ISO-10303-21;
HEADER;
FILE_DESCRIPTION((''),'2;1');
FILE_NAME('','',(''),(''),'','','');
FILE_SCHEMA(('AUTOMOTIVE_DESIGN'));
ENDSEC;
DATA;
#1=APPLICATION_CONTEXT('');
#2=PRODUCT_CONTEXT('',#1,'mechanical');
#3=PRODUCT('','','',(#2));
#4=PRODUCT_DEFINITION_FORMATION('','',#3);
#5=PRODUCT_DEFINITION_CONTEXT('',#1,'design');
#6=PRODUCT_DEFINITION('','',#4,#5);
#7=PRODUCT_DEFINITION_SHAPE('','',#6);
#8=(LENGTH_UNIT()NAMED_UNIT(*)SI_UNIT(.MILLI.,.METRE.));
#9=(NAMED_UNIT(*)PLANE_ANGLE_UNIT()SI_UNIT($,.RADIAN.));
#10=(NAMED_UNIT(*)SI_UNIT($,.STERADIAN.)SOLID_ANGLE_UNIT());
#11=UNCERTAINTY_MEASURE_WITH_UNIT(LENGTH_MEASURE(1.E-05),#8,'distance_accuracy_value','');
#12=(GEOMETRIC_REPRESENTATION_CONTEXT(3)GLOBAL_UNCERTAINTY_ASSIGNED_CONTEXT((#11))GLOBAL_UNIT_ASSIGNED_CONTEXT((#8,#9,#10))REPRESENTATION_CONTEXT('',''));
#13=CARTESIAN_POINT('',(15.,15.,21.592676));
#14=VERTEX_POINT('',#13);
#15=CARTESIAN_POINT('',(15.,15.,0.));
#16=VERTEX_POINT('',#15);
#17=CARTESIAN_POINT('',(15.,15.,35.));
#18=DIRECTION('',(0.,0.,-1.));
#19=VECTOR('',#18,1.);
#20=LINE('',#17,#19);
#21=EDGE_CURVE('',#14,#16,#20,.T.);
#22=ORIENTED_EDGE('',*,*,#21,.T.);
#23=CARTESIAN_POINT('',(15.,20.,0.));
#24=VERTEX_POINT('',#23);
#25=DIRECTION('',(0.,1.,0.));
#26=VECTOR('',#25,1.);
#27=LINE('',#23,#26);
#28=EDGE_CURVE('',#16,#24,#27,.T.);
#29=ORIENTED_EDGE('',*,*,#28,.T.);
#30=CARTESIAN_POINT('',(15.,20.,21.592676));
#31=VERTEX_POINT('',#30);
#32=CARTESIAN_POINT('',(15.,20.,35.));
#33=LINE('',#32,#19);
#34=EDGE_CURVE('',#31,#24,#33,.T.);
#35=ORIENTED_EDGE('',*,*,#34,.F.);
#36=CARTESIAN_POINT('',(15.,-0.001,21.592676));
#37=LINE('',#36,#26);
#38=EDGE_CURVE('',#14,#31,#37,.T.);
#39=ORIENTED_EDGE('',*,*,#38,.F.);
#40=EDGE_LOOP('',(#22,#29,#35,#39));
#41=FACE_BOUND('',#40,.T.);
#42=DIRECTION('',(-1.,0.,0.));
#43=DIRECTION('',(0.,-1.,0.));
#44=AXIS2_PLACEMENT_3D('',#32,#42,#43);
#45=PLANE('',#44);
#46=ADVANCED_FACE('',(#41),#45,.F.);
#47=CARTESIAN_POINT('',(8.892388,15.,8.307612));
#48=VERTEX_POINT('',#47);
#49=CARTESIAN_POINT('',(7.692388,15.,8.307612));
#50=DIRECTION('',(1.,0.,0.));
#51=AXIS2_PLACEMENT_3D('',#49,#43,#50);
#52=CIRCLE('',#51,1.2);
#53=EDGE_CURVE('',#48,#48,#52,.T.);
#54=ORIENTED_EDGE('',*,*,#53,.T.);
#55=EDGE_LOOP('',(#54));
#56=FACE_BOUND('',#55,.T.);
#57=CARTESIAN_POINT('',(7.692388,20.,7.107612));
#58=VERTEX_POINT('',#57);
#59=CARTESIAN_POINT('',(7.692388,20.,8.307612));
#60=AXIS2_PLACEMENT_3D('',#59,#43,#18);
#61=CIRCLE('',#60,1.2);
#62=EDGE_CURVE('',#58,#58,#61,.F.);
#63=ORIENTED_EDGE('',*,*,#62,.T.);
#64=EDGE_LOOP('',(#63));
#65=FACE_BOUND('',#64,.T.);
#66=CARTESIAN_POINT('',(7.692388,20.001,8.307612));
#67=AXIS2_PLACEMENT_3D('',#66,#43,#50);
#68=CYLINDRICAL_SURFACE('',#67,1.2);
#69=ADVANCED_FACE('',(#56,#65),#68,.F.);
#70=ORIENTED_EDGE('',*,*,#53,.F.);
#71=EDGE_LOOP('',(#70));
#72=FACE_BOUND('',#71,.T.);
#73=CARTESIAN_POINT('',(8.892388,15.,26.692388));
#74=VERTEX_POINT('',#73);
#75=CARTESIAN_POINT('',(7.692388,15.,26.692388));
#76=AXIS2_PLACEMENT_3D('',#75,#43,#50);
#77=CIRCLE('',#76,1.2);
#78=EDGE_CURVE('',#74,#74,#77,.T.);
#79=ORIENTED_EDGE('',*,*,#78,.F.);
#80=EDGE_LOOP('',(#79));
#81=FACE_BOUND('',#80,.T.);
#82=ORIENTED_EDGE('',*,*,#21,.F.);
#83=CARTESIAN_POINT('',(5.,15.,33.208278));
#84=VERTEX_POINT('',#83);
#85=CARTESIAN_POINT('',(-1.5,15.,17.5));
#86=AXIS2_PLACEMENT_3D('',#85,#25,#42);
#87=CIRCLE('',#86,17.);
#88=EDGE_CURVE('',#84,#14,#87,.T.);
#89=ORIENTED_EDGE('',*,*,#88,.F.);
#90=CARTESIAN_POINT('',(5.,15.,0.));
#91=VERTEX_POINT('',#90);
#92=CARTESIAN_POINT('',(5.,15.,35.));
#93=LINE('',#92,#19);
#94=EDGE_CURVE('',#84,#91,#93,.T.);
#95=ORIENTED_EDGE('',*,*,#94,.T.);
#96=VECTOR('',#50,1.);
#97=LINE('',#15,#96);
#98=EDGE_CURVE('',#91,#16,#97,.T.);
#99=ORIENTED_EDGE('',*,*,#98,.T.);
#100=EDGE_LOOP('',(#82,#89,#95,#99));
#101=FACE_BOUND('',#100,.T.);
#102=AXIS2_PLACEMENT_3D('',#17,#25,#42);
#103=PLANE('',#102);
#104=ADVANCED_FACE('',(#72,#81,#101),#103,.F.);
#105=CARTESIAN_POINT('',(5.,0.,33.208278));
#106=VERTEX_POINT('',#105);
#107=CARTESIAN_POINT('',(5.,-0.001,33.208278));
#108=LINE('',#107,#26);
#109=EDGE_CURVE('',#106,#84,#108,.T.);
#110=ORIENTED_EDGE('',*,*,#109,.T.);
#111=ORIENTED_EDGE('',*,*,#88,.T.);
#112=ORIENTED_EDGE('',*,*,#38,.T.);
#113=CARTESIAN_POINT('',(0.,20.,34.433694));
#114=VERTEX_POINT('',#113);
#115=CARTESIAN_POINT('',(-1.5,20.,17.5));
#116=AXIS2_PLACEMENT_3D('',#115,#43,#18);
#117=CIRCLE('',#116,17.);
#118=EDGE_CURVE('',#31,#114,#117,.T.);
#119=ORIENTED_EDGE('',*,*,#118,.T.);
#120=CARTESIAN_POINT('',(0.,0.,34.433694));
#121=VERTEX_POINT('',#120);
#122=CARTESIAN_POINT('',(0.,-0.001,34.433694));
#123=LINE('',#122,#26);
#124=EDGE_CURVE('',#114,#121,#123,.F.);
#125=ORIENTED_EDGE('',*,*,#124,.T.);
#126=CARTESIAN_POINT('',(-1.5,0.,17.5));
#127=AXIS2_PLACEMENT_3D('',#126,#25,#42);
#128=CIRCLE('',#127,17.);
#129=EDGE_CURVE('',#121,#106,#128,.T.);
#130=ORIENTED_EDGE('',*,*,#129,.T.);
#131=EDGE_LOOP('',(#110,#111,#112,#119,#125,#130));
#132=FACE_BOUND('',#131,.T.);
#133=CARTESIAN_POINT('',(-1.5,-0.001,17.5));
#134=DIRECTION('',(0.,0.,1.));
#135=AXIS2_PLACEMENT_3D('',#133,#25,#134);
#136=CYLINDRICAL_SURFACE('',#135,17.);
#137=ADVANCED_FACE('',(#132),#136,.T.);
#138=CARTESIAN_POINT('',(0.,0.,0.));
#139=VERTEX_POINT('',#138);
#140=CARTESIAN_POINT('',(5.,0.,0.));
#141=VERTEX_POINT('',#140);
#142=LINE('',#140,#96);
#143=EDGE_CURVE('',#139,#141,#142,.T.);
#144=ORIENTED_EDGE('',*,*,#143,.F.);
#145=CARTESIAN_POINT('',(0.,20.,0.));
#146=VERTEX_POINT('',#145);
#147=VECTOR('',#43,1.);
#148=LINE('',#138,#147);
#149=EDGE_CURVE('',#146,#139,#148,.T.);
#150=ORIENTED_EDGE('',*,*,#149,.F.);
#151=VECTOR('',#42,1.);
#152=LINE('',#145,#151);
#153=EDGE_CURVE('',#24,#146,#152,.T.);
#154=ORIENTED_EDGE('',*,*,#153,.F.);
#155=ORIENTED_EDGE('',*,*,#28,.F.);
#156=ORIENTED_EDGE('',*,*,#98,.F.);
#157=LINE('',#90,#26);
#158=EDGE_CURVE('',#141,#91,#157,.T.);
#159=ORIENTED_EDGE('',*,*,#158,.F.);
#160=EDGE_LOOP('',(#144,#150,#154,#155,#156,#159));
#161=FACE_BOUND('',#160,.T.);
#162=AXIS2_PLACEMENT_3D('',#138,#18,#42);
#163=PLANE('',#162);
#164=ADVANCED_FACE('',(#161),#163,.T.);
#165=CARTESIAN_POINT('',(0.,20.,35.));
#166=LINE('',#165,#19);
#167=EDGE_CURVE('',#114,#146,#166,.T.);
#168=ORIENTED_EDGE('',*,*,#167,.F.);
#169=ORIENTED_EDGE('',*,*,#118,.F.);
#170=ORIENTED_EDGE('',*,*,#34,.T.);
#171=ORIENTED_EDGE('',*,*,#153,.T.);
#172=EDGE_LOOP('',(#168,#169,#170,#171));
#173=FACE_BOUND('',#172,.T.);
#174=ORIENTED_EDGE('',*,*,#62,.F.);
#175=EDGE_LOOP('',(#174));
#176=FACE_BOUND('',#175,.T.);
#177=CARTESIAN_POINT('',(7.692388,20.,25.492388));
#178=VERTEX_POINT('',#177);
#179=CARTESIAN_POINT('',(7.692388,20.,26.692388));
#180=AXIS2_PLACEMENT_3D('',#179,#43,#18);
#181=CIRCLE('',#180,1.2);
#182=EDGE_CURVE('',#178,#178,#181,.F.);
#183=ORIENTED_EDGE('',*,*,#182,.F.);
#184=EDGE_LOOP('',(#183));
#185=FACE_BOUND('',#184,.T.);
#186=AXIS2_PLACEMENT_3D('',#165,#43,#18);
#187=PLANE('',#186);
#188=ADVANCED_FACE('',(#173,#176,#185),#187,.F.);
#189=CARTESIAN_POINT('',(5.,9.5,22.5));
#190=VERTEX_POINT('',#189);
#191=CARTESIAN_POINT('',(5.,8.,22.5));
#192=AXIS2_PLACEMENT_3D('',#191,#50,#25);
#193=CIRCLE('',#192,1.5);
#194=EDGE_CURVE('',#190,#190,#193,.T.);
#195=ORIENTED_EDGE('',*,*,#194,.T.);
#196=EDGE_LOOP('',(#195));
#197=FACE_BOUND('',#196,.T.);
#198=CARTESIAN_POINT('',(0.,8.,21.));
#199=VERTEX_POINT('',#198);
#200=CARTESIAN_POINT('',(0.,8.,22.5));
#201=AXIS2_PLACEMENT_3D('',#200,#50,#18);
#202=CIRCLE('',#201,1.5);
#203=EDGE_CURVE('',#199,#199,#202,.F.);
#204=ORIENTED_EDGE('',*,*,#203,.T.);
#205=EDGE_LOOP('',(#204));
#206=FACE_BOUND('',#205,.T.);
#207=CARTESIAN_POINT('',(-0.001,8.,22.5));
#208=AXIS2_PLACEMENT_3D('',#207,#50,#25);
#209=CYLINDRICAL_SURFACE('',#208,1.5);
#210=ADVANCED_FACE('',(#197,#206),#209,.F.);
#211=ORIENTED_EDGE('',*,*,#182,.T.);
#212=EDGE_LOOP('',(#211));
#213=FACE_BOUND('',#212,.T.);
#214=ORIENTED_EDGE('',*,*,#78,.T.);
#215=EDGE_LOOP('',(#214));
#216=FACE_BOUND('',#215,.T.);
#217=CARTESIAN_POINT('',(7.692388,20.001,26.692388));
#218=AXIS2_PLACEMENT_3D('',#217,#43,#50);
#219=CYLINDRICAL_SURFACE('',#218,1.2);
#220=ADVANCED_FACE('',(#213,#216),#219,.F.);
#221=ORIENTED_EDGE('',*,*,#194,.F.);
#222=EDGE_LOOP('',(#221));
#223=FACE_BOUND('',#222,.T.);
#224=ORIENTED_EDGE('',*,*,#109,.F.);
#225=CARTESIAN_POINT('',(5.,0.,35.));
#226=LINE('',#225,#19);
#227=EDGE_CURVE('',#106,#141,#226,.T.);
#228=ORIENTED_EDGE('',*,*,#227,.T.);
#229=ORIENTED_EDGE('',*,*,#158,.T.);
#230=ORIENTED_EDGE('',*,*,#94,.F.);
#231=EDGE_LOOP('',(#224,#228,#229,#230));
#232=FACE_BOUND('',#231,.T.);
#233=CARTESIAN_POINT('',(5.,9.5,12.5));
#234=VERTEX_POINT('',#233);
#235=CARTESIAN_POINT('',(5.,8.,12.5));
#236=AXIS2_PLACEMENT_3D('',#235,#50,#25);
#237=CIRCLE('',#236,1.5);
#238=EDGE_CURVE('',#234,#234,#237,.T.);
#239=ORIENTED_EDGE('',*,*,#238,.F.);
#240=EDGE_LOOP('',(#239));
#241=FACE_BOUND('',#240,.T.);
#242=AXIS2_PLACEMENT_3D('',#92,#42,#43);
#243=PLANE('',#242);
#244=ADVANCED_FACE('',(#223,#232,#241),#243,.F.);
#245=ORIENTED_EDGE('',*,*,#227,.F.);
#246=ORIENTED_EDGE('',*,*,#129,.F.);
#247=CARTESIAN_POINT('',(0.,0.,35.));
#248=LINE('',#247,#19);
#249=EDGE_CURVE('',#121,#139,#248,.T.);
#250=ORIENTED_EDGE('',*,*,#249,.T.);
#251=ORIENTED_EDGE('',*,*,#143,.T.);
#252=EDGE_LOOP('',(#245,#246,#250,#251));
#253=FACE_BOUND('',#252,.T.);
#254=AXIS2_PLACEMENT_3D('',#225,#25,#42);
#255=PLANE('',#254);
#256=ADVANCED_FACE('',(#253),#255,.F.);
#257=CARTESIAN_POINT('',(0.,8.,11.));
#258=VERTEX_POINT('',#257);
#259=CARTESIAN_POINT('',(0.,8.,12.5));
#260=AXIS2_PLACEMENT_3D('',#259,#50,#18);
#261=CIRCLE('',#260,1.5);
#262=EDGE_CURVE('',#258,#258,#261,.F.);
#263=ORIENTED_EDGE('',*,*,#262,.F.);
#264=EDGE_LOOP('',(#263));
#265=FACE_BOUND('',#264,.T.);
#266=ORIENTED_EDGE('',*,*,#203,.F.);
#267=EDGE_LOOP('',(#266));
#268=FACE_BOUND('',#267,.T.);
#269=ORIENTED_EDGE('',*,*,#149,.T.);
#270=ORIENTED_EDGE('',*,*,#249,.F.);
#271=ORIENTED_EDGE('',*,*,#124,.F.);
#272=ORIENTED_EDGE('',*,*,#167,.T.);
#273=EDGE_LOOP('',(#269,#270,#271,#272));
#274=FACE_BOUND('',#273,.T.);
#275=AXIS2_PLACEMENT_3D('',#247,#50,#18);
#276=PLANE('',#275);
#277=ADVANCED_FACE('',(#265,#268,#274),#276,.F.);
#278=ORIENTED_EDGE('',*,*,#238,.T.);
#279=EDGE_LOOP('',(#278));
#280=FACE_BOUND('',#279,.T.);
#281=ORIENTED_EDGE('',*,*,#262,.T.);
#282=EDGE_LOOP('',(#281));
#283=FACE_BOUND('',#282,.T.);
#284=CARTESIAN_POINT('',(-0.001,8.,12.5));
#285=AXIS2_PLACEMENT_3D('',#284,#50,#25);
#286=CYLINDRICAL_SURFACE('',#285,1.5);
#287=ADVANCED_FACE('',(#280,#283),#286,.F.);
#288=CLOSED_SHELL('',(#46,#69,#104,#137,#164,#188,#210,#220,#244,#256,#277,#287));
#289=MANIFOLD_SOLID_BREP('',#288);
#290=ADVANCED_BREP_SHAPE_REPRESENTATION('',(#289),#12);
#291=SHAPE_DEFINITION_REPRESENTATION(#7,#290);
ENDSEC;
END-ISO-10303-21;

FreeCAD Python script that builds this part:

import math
import FreeCAD as App
import Part
import Sketcher
from FreeCAD import Vector
Q = App.Units.Quantity

doc = App.newDocument("Part")
params = doc.addObject("Spreadsheet::Sheet", "Params")
for row, (alias, value) in enumerate([
    ("sketch1_width", "5 mm"),
    ("sketch1_width2", "10 mm"),
    ("pad1_length", "35 mm"),
    ("sketch2_diameter", "2.4 mm"),
    ("sketch3_diameter", "2.4 mm"),
    ("sketch4_diameter", "3 mm"),
    ("sketch5_diameter", "3 mm"),
    ("sketch6_radius", "25 mm"),
    ("sketch6_radius2", "17 mm"),
    ("pocket5_length", "20 mm"),
], start=1):
    params.set(f"A{row}", alias)
    params.set(f"B{row}", "=" + value)
    params.setAlias(f"B{row}", alias)

body = doc.addObject("PartDesign::Body", "Body")

# Sketch on XY plane
sketch1 = doc.addObject("Sketcher::SketchObject", "Sketch")
body.addObject(sketch1)
sketch1.AttachmentSupport = (doc.XY_Plane, [""])
sketch1.MapMode = "FlatFace"
sketch1.addGeometry(Part.LineSegment(Vector(0, 20, 0), Vector(0, 0, 0)), False)
sketch1.addGeometry(Part.LineSegment(Vector(0, 0, 0), Vector(5, 0, 0)), False)
sketch1.addGeometry(Part.LineSegment(Vector(5, 0, 0), Vector(5, 15, 0)), False)
sketch1.addGeometry(Part.LineSegment(Vector(5, 15, 0), Vector(15, 15, 0)), False)
sketch1.addGeometry(Part.LineSegment(Vector(15, 15, 0), Vector(15, 20, 0)), False)
sketch1.addGeometry(Part.LineSegment(Vector(15, 20, 0), Vector(0, 20, 0)), False)
sketch1.addConstraint(Sketcher.Constraint("Coincident", 0, 2, 1, 1))
sketch1.addConstraint(Sketcher.Constraint("Coincident", 1, 2, 2, 1))
sketch1.addConstraint(Sketcher.Constraint("Coincident", 2, 2, 3, 1))
sketch1.addConstraint(Sketcher.Constraint("Coincident", 3, 2, 4, 1))
sketch1.addConstraint(Sketcher.Constraint("Coincident", 4, 2, 5, 1))
sketch1.addConstraint(Sketcher.Constraint("Coincident", 5, 2, 0, 1))
sketch1.addConstraint(Sketcher.Constraint("Vertical", 0))
sketch1.addConstraint(Sketcher.Constraint("Horizontal", 1))
sketch1.addConstraint(Sketcher.Constraint("Vertical", 2))
sketch1.addConstraint(Sketcher.Constraint("Horizontal", 3))
sketch1.addConstraint(Sketcher.Constraint("Vertical", 4))
sketch1.addConstraint(Sketcher.Constraint("Horizontal", 5))
sketch1.addConstraint(Sketcher.Constraint("Coincident", 0, 2, -1, 1))
sketch1.addConstraint(Sketcher.Constraint("Equal", 5, 2))
sketch1.addConstraint(Sketcher.Constraint("Equal", 1, 4))
sketch1.addConstraint(Sketcher.Constraint("DistanceX", 1, 1, 1, 2, Q("5 mm")))
sketch1.addConstraint(Sketcher.Constraint("DistanceX", 3, 1, 3, 2, Q("10 mm")))
sketch1.setExpression("Constraints[15]", "Params.sketch1_width")
sketch1.setExpression("Constraints[16]", "Params.sketch1_width2")
pad1 = doc.addObject("PartDesign::Pad", "Pad")
body.addObject(pad1)
pad1.Profile = sketch1
pad1.setExpression("Length", "Params.pad1_length")

# Sketch on XZ plane
sketch2 = doc.addObject("Sketcher::SketchObject", "Sketch001")
body.addObject(sketch2)
sketch2.AttachmentSupport = (doc.XZ_Plane, [""])
sketch2.MapMode = "FlatFace"
sketch2.AttachmentOffset = App.Placement(Vector(0, 0, -15), App.Rotation())
sketch2.addGeometry(Part.Circle(Vector(7.7, 26.7, 0), Vector(0, 0, 1), 1.2), False)
sketch2.addConstraint(Sketcher.Constraint("Diameter", 0, Q("2.4 mm")))
sketch2.addConstraint(Sketcher.Constraint("DistanceX", -1, 1, 0, 3, Q("7.692388 mm")))
sketch2.addConstraint(Sketcher.Constraint("DistanceY", -1, 1, 0, 3, Q("26.692388 mm")))
sketch2.setExpression("Constraints[0]", "Params.sketch2_diameter")
pocket1 = doc.addObject("PartDesign::Pocket", "Pocket")
body.addObject(pocket1)
pocket1.Profile = sketch2
pocket1.Type = "UpToFirst"

# Sketch on XZ plane
sketch3 = doc.addObject("Sketcher::SketchObject", "Sketch002")
body.addObject(sketch3)
sketch3.AttachmentSupport = (doc.XZ_Plane, [""])
sketch3.MapMode = "FlatFace"
sketch3.AttachmentOffset = App.Placement(Vector(0, 0, -15), App.Rotation())
sketch3.addGeometry(Part.Circle(Vector(7.7, 8.3, 0), Vector(0, 0, 1), 1.2), False)
sketch3.addConstraint(Sketcher.Constraint("Diameter", 0, Q("2.4 mm")))
sketch3.addConstraint(Sketcher.Constraint("DistanceX", -1, 1, 0, 3, Q("7.692388 mm")))
sketch3.addConstraint(Sketcher.Constraint("DistanceY", -1, 1, 0, 3, Q("8.307612 mm")))
sketch3.setExpression("Constraints[0]", "Params.sketch3_diameter")
pocket2 = doc.addObject("PartDesign::Pocket", "Pocket001")
body.addObject(pocket2)
pocket2.Profile = sketch3
pocket2.Type = "UpToFirst"

# Sketch on YZ plane
sketch4 = doc.addObject("Sketcher::SketchObject", "Sketch003")
body.addObject(sketch4)
sketch4.AttachmentSupport = (doc.YZ_Plane, [""])
sketch4.MapMode = "FlatFace"
sketch4.AttachmentOffset = App.Placement(Vector(0, 0, 5), App.Rotation())
sketch4.addGeometry(Part.Circle(Vector(8, 22.5, 0), Vector(0, 0, 1), 1.5), False)
sketch4.addConstraint(Sketcher.Constraint("Diameter", 0, Q("3 mm")))
sketch4.addConstraint(Sketcher.Constraint("DistanceX", -1, 1, 0, 3, Q("8 mm")))
sketch4.addConstraint(Sketcher.Constraint("DistanceY", -1, 1, 0, 3, Q("22.5 mm")))
sketch4.setExpression("Constraints[0]", "Params.sketch4_diameter")
pocket3 = doc.addObject("PartDesign::Pocket", "Pocket002")
body.addObject(pocket3)
pocket3.Profile = sketch4
pocket3.Type = "UpToFirst"

# Sketch on YZ plane
sketch5 = doc.addObject("Sketcher::SketchObject", "Sketch004")
body.addObject(sketch5)
sketch5.AttachmentSupport = (doc.YZ_Plane, [""])
sketch5.MapMode = "FlatFace"
sketch5.AttachmentOffset = App.Placement(Vector(0, 0, 5), App.Rotation())
sketch5.addGeometry(Part.Circle(Vector(8, 12.5, 0), Vector(0, 0, 1), 1.5), False)
sketch5.addConstraint(Sketcher.Constraint("Diameter", 0, Q("3 mm")))
sketch5.addConstraint(Sketcher.Constraint("DistanceX", -1, 1, 0, 3, Q("8 mm")))
sketch5.addConstraint(Sketcher.Constraint("DistanceY", -1, 1, 0, 3, Q("12.5 mm")))
sketch5.setExpression("Constraints[0]", "Params.sketch5_diameter")
pocket4 = doc.addObject("PartDesign::Pocket", "Pocket003")
body.addObject(pocket4)
pocket4.Profile = sketch5
pocket4.Type = "UpToFirst"

# Sketch on XZ plane
sketch6 = doc.addObject("Sketcher::SketchObject", "Sketch005")
body.addObject(sketch6)
sketch6.AttachmentSupport = (doc.XZ_Plane, [""])
sketch6.MapMode = "FlatFace"
sketch6.AttachmentOffset = App.Placement(Vector(0, 0, -20), App.Rotation())
sketch6.addGeometry(Part.LineSegment(Vector(-2, 34, 0), Vector(-2, 42, 0)), False)
sketch6.addGeometry(Part.ArcOfCircle(Part.Circle(Vector(-1, 18, 0), Vector(0, 0, 1), 25), math.radians(0), math.radians(90)), False)
sketch6.addGeometry(Part.LineSegment(Vector(24, 18, 0), Vector(16, 18, 0)), False)
sketch6.addGeometry(Part.ArcOfCircle(Part.Circle(Vector(-2, 17, 0), Vector(0, 0, 1), 17), math.radians(0), math.radians(90)), False)
sketch6.addConstraint(Sketcher.Constraint("Coincident", 0, 2, 1, 2))
sketch6.addConstraint(Sketcher.Constraint("Coincident", 1, 1, 2, 1))
sketch6.addConstraint(Sketcher.Constraint("Coincident", 2, 2, 3, 1))
sketch6.addConstraint(Sketcher.Constraint("Coincident", 3, 2, 0, 1))
sketch6.addConstraint(Sketcher.Constraint("Vertical", 0))
sketch6.addConstraint(Sketcher.Constraint("Horizontal", 2))
sketch6.addConstraint(Sketcher.Constraint("Coincident", 3, 3, 1, 3))
sketch6.addConstraint(Sketcher.Constraint("Horizontal", 3, 3, 1, 1))
sketch6.addConstraint(Sketcher.Constraint("Vertical", 3, 3, 0, 2))
sketch6.addConstraint(Sketcher.Constraint("Radius", 1, Q("25 mm")))
sketch6.addConstraint(Sketcher.Constraint("Radius", 3, Q("17 mm")))
sketch6.addConstraint(Sketcher.Constraint("DistanceX", 1, 3, -1, 1, Q("1.5 mm")))
sketch6.addConstraint(Sketcher.Constraint("DistanceY", -1, 1, 1, 3, Q("17.5 mm")))
sketch6.setExpression("Constraints[9]", "Params.sketch6_radius")
sketch6.setExpression("Constraints[10]", "Params.sketch6_radius2")
pocket5 = doc.addObject("PartDesign::Pocket", "Pocket004")
body.addObject(pocket5)
pocket5.Profile = sketch6
pocket5.setExpression("Length", "Params.pocket5_length")
pocket5.Reversed = True

doc.recompute()
